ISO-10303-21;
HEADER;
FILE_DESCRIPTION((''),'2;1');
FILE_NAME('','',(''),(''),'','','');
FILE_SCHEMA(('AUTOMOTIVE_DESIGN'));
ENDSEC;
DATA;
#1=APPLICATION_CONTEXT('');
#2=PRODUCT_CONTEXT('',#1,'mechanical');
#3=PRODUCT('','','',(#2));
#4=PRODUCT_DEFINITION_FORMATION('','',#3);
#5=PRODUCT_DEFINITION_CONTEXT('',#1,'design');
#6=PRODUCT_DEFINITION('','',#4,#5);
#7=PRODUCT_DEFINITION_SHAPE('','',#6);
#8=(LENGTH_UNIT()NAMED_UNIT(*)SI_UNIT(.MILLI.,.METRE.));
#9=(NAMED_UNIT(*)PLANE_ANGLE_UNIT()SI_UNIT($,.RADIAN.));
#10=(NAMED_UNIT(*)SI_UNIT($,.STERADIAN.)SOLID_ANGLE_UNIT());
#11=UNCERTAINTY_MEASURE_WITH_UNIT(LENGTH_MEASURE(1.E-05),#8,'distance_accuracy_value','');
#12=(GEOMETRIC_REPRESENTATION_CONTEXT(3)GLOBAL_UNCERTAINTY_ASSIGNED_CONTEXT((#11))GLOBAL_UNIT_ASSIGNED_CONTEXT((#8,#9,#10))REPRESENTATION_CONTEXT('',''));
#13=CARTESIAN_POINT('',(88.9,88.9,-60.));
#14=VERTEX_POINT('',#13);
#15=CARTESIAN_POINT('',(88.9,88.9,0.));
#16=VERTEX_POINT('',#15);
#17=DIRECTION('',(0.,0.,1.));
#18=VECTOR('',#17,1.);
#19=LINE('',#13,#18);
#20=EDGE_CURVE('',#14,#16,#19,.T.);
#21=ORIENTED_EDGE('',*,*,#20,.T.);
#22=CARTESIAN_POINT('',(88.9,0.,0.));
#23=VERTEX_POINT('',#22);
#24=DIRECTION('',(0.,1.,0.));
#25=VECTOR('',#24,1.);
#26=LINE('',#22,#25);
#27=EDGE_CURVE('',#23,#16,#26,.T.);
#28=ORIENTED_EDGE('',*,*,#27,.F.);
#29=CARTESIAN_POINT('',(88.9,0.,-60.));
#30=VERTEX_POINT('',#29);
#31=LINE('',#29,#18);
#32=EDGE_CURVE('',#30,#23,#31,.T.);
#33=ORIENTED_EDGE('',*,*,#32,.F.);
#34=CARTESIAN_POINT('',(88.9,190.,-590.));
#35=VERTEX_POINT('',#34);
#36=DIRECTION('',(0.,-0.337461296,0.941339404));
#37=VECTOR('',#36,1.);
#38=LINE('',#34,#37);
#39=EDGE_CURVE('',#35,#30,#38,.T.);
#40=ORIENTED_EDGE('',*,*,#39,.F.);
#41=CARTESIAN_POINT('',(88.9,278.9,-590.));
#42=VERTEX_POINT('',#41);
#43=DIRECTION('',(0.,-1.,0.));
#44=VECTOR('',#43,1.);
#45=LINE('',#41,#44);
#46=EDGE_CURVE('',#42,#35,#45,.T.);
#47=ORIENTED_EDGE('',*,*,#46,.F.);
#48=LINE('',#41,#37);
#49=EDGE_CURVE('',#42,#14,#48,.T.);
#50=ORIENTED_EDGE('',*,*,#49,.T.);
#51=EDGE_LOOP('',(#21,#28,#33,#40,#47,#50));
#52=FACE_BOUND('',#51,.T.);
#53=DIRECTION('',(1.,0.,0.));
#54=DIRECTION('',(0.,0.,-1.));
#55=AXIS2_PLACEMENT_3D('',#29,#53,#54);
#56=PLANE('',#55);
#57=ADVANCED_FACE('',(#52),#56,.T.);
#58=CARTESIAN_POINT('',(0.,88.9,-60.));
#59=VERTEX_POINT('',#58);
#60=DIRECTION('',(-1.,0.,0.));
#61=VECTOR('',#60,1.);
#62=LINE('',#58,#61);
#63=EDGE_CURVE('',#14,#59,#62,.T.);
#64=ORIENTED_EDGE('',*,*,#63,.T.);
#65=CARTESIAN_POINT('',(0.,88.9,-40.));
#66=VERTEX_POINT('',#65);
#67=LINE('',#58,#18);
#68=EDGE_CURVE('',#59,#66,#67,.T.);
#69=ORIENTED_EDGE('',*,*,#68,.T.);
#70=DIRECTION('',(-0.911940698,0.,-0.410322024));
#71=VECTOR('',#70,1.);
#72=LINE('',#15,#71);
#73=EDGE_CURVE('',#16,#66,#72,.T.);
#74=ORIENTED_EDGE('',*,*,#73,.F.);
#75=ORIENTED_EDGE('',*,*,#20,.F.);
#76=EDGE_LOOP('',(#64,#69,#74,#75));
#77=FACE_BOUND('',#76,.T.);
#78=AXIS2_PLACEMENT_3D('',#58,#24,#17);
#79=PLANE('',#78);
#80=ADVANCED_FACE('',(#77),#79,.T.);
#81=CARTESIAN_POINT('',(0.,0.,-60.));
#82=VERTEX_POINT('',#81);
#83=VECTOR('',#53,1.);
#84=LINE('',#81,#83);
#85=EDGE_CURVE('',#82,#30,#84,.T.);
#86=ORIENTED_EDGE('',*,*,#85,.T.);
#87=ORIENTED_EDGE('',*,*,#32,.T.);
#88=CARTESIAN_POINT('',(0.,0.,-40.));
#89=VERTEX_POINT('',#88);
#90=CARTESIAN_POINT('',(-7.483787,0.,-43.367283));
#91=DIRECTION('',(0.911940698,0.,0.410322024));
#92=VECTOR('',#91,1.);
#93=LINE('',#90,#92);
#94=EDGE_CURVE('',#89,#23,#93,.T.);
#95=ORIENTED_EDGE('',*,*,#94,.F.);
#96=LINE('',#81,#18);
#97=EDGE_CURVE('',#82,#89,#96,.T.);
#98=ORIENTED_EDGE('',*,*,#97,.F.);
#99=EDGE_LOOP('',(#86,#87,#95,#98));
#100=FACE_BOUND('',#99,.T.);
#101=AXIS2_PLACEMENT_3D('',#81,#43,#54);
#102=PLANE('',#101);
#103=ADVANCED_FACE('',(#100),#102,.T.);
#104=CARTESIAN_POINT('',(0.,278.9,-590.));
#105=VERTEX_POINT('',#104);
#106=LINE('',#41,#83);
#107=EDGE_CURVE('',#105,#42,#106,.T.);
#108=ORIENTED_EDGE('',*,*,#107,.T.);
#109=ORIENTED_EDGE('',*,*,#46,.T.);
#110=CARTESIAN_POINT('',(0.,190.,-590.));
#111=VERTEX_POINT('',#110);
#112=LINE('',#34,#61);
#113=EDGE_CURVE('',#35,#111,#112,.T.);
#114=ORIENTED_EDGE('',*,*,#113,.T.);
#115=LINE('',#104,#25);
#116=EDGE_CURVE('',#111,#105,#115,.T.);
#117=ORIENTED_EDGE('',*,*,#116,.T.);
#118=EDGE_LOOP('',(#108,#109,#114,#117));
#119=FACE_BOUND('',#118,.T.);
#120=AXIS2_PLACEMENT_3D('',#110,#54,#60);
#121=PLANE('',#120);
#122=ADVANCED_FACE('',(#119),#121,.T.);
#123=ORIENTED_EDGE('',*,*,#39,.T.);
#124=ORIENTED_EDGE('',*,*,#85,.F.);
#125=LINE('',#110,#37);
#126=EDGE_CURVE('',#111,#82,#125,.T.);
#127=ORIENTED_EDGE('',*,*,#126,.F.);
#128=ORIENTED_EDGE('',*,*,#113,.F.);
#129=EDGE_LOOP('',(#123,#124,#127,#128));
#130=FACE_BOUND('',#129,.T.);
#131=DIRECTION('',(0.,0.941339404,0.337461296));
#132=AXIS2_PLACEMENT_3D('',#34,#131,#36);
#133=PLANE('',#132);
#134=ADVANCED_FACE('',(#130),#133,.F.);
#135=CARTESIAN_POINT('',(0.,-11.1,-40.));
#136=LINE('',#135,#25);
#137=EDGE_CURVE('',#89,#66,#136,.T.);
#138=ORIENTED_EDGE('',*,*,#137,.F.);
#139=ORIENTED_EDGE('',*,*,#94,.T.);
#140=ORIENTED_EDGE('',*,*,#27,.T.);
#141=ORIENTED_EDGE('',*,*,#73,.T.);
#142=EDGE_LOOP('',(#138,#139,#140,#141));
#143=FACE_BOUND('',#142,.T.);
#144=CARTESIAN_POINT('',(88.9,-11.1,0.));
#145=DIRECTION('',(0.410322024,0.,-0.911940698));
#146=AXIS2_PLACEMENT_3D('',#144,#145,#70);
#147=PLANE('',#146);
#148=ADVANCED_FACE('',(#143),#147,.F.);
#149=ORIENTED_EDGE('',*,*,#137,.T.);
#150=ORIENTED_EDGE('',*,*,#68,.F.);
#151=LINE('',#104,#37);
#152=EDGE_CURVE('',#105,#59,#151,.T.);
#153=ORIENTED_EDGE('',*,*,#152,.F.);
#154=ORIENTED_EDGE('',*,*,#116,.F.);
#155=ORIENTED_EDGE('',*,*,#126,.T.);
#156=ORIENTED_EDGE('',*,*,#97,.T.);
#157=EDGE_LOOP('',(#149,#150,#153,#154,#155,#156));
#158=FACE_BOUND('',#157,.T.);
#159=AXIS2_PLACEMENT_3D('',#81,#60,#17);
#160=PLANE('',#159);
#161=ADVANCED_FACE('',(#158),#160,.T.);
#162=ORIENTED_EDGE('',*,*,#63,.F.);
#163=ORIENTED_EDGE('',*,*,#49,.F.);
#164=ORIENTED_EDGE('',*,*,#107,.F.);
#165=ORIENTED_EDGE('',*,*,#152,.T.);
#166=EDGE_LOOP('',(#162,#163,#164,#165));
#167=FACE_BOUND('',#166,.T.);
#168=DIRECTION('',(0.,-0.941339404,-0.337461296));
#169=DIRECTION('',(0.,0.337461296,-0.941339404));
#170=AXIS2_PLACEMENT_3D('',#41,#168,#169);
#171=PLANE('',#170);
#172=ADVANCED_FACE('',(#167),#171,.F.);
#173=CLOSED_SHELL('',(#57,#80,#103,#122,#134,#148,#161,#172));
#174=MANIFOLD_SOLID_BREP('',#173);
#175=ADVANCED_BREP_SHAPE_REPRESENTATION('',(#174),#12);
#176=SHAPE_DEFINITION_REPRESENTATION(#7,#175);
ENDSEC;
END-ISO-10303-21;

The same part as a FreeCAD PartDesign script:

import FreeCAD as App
import Part
import Sketcher
from FreeCAD import Vector

doc = App.newDocument("Part")
body = doc.addObject("PartDesign::Body", "Body")

# Sketch on XY plane
sketch1 = body.newObject("Sketcher::SketchObject", "Sketch")
sketch1.AttachmentSupport = (doc.getObject("XY_Plane"), [""])
sketch1.MapMode = "FlatFace"
sketch1.addGeometry(Part.LineSegment(Vector(0, 89, 0), Vector(0, 0, 0)), False)
sketch1.addGeometry(Part.LineSegment(Vector(0, 0, 0), Vector(89, 0, 0)), False)
sketch1.addGeometry(Part.LineSegment(Vector(89, 0, 0), Vector(89, 89, 0)), False)
sketch1.addGeometry(Part.LineSegment(Vector(89, 89, 0), Vector(0, 89, 0)), False)
sketch1.addConstraint(Sketcher.Constraint("Coincident", 0, 2, 1, 1))
sketch1.addConstraint(Sketcher.Constraint("Coincident", 1, 2, 2, 1))
sketch1.addConstraint(Sketcher.Constraint("Coincident", 2, 2, 3, 1))
sketch1.addConstraint(Sketcher.Constraint("Coincident", 3, 2, 0, 1))
sketch1.addConstraint(Sketcher.Constraint("Vertical", 0))
sketch1.addConstraint(Sketcher.Constraint("Horizontal", 1))
sketch1.addConstraint(Sketcher.Constraint("Vertical", 2))
sketch1.addConstraint(Sketcher.Constraint("Horizontal", 3))
sketch1.addConstraint(Sketcher.Constraint("Coincident", 0, 2, -1, 1))
sketch1.addConstraint(Sketcher.Constraint("Equal", 3, 0))
sketch1.addConstraint(Sketcher.Constraint("DistanceX", 1, 1, 1, 2, 88.9))
pad1 = body.newObject("PartDesign::Pad", "Pad")
pad1.Profile = sketch1
pad1.Length = 60
pad1.Reversed = True

# Sketch on XY plane
sketch2 = body.newObject("Sketcher::SketchObject", "Sketch001")
sketch2.AttachmentSupport = (doc.getObject("XY_Plane"), [""])
sketch2.MapMode = "FlatFace"
sketch2.AttachmentOffset = App.Placement(Vector(0, 0, -60), App.Rotation())
sketch2.addGeometry(Part.LineSegment(Vector(89, 89, 0), Vector(89, 0, 0)), False)
sketch2.addGeometry(Part.LineSegment(Vector(89, 0, 0), Vector(0, 0, 0)), False)
sketch2.addGeometry(Part.LineSegment(Vector(0, 0, 0), Vector(0, 89, 0)), False)
sketch2.addGeometry(Part.LineSegment(Vector(0, 89, 0), Vector(89, 89, 0)), False)
sketch2.addConstraint(Sketcher.Constraint("Coincident", 0, 2, 1, 1))
sketch2.addConstraint(Sketcher.Constraint("Coincident", 1, 2, 2, 1))
sketch2.addConstraint(Sketcher.Constraint("Coincident", 2, 2, 3, 1))
sketch2.addConstraint(Sketcher.Constraint("Coincident", 3, 2, 0, 1))
sketch2.addConstraint(Sketcher.Constraint("Vertical", 0))
sketch2.addConstraint(Sketcher.Constraint("Horizontal", 1))
sketch2.addConstraint(Sketcher.Constraint("Vertical", 2))
sketch2.addConstraint(Sketcher.Constraint("Horizontal", 3))
sketch2.addConstraint(Sketcher.Constraint("Coincident", 1, 2, -1, 1))
sketch2.addConstraint(Sketcher.Constraint("Equal", 3, 0))
sketch2.addConstraint(Sketcher.Constraint("DistanceX", 1, 2, 1, 1, 88.9))

# Sketch on an angled plane
sketch3 = body.newObject("Sketcher::SketchObject", "Sketch002")
sketch3.Placement = App.Placement(Vector(0, 20.328091, 7.287429), App.Rotation(Vector(0, 0.337461296, -0.941339404), Vector(1, 0, 0), Vector(0, -0.941339404, -0.337461296), "ZXY"))
sketch3.addGeometry(Part.LineSegment(Vector(635, 44, 0), Vector(71, 44, 0)), False)
sketch3.addConstraint(Sketcher.Constraint("Horizontal", 0))
sketch3.addConstraint(Sketcher.Constraint("DistanceY", -1, 1, 0, 1, 44.45))
sketch3.addConstraint(Sketcher.Constraint("DistanceX", 0, 2, 0, 1, 563.02753))
sketch3.addConstraint(Sketcher.Constraint("DistanceX", -1, 1, 0, 1, 634.508049))
doc.recompute()

additivepipe = body.newObject("PartDesign::AdditivePipe", "AdditivePipe")
additivepipe.Profile = sketch2
additivepipe.Spine = (sketch3, ["Edge1"])

# Sketch on XZ plane
sketch4 = body.newObject("Sketcher::SketchObject", "Sketch003")
sketch4.AttachmentSupport = (doc.getObject("XZ_Plane"), [""])
sketch4.MapMode = "FlatFace"
sketch4.AttachmentOffset = App.Placement(Vector(0, 0, -88.9), App.Rotation())
sketch4.addGeometry(Part.LineSegment(Vector(89, 0, 0), Vector(0, -40, 0)), False)
sketch4.addGeometry(Part.LineSegment(Vector(0, -40, 0), Vector(0, 0, 0)), False)
sketch4.addGeometry(Part.LineSegment(Vector(0, 0, 0), Vector(89, 0, 0)), False)
sketch4.addConstraint(Sketcher.Constraint("Coincident", 0, 2, 1, 1))
sketch4.addConstraint(Sketcher.Constraint("Coincident", 1, 2, 2, 1))
sketch4.addConstraint(Sketcher.Constraint("Coincident", 2, 2, 0, 1))
sketch4.addConstraint(Sketcher.Constraint("Vertical", 1))
sketch4.addConstraint(Sketcher.Constraint("Horizontal", 2))
sketch4.addConstraint(Sketcher.Constraint("Coincident", 1, 2, -1, 1))
sketch4.addConstraint(Sketcher.Constraint("DistanceY", 1, 1, 1, 2, 40.0))
sketch4.addConstraint(Sketcher.Constraint("DistanceX", 2, 1, 2, 2, 88.9))
pocket1 = body.newObject("PartDesign::Pocket", "Pocket")
pocket1.Profile = sketch4
pocket1.Length = 100
pocket1.Reversed = True

doc.recompute()
